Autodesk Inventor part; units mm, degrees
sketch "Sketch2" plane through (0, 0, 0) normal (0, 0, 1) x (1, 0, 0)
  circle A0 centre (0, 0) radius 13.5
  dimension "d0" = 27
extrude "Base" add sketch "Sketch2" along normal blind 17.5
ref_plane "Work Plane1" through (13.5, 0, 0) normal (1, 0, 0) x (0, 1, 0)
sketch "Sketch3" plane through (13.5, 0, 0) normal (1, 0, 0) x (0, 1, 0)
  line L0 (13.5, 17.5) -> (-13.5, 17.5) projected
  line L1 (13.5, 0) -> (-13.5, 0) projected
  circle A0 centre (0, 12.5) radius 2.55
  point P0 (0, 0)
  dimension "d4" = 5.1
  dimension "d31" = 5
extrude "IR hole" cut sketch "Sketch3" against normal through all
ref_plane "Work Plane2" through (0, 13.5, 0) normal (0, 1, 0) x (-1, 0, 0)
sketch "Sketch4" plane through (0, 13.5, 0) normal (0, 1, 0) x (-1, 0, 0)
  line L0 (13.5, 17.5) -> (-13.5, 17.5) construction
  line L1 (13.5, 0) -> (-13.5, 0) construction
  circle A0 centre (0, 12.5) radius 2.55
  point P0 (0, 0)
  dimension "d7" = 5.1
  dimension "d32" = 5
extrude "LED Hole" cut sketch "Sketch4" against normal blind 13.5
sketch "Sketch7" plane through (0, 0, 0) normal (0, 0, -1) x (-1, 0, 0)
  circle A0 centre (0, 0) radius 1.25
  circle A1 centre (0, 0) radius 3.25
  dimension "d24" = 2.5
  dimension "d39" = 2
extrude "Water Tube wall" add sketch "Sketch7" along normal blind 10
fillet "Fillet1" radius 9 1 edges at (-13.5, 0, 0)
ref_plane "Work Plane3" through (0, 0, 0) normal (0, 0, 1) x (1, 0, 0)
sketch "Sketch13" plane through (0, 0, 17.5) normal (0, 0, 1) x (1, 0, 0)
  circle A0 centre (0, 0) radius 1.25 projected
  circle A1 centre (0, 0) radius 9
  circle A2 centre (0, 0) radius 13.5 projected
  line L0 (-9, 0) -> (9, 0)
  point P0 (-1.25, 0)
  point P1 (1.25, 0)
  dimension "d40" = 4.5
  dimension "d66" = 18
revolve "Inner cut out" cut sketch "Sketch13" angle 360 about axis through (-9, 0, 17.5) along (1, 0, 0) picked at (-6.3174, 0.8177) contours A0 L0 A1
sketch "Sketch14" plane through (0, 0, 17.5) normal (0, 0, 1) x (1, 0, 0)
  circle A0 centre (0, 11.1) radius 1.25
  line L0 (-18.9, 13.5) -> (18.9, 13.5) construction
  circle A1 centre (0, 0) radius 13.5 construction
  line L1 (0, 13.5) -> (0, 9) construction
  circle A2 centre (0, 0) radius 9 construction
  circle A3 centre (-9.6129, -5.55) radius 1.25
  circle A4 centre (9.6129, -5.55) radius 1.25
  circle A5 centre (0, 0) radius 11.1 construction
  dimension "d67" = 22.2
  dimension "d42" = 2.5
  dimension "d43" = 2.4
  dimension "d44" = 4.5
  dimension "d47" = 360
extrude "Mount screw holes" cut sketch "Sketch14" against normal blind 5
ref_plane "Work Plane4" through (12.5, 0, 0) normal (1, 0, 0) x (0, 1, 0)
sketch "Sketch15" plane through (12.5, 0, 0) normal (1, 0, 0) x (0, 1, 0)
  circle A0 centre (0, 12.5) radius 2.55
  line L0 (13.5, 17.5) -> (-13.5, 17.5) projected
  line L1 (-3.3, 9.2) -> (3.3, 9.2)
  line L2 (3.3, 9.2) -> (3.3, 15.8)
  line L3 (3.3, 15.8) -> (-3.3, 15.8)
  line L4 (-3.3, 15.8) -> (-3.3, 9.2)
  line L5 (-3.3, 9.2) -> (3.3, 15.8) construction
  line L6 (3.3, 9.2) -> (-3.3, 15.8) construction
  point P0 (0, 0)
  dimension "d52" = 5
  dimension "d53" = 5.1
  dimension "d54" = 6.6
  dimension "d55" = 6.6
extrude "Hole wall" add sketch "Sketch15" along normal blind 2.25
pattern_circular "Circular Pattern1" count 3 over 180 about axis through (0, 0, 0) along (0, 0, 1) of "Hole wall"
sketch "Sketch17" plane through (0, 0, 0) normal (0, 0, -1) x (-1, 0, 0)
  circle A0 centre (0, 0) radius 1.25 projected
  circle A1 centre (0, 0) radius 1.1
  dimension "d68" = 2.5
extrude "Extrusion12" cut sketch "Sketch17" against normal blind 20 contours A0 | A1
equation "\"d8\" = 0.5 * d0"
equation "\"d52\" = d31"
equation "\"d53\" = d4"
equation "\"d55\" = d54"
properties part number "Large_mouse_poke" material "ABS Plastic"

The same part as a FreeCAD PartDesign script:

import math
import FreeCAD as App
import Part
import Sketcher
from FreeCAD import Vector
Q = App.Units.Quantity


def edges_at(feature, points):
    """Names of the edges that pass closest to the given points."""
    edges = feature.Shape.Edges
    near = lambda p: min(range(len(edges)), key=lambda i: edges[i].distToShape(Part.Vertex(*p))[0])
    return sorted({f"Edge{near(p) + 1}" for p in points})

doc = App.newDocument("Part")
body = doc.addObject("PartDesign::Body", "Body")
body.AllowCompound = True

# Sketch on XY plane
sketch1 = body.newObject("Sketcher::SketchObject", "Sketch")
sketch1.AttachmentSupport = (doc.getObject("XY_Plane"), [""])
sketch1.MapMode = "FlatFace"
sketch1.addGeometry(Part.Circle(Vector(0, 0, 0), Vector(0, 0, 1), 14), False)
sketch1.addConstraint(Sketcher.Constraint("Coincident", 0, 3, -1, 1))
sketch1.addConstraint(Sketcher.Constraint("Diameter", 0, Q("27 mm")))
pad1 = body.newObject("PartDesign::Pad", "Pad")
pad1.Profile = sketch1
pad1.Length = 17.5

# Sketch on YZ plane
sketch2 = body.newObject("Sketcher::SketchObject", "Sketch001")
sketch2.AttachmentSupport = (doc.getObject("YZ_Plane"), [""])
sketch2.MapMode = "FlatFace"
sketch2.AttachmentOffset = App.Placement(Vector(0, 0, 13.5), App.Rotation())
sketch2.addGeometry(Part.Circle(Vector(0, 12.5, 0), Vector(0, 0, 1), 2.5), False)
sketch2.addConstraint(Sketcher.Constraint("PointOnObject", 0, 3, -2))
sketch2.addConstraint(Sketcher.Constraint("Diameter", 0, Q("5.1 mm")))
sketch2.addConstraint(Sketcher.Constraint("DistanceY", -1, 1, 0, 3, Q("12.5 mm")))
pocket1 = body.newObject("PartDesign::Pocket", "Pocket")
pocket1.Profile = sketch2
pocket1.Type = "ThroughAll"

# Sketch on XZ plane
sketch3 = body.newObject("Sketcher::SketchObject", "Sketch002")
sketch3.AttachmentSupport = (doc.getObject("XZ_Plane"), [""])
sketch3.MapMode = "FlatFace"
sketch3.AttachmentOffset = App.Placement(Vector(0, 0, -13.5), App.Rotation())
sketch3.addGeometry(Part.Circle(Vector(0, 12.5, 0), Vector(0, 0, 1), 2.5), False)
sketch3.addConstraint(Sketcher.Constraint("PointOnObject", 0, 3, -2))
sketch3.addConstraint(Sketcher.Constraint("Diameter", 0, Q("5.1 mm")))
sketch3.addConstraint(Sketcher.Constraint("DistanceY", -1, 1, 0, 3, Q("12.5 mm")))
pocket2 = body.newObject("PartDesign::Pocket", "Pocket001")
pocket2.Profile = sketch3
pocket2.Length = 13.5
pocket2.Reversed = True

# Sketch on XY plane
sketch4 = body.newObject("Sketcher::SketchObject", "Sketch003")
sketch4.AttachmentSupport = (doc.getObject("XY_Plane"), [""])
sketch4.MapMode = "FlatFace"
sketch4.addGeometry(Part.Circle(Vector(0, 0, 0), Vector(0, 0, 1), 3.2), False)
sketch4.addGeometry(Part.Circle(Vector(0, 0, 0), Vector(0, 0, 1), 1.2), False)
sketch4.addConstraint(Sketcher.Constraint("Coincident", 0, 3, -1, 1))
sketch4.addConstraint(Sketcher.Constraint("Coincident", 1, 3, -1, 1))
sketch4.addConstraint(Sketcher.Constraint("Diameter", 1, Q("2.5 mm")))
sketch4.addConstraint(Sketcher.Constraint("Diameter", 0, Q("6.5 mm")))
pad2 = body.newObject("PartDesign::Pad", "Pad001")
pad2.Profile = sketch4
pad2.Length = 10
pad2.Reversed = True
doc.recompute()

fillet = body.newObject("PartDesign::Fillet", "Fillet")
fillet.Base = (pad2, edges_at(pad2, [(-13.5, 0, 0)]))
fillet.Radius = 9

# Sketch on XY plane
sketch5 = body.newObject("Sketcher::SketchObject", "Sketch004")
sketch5.AttachmentSupport = (doc.getObject("XY_Plane"), [""])
sketch5.MapMode = "FlatFace"
sketch5.AttachmentOffset = App.Placement(Vector(0, 0, 17.5), App.Rotation())
sketch5.addGeometry(Part.ArcOfCircle(Part.Circle(Vector(0, 0, 0), Vector(0, 0, 1), 1.2), math.radians(0), math.radians(180)), False)
sketch5.addGeometry(Part.LineSegment(Vector(1.2, 0, 0), Vector(9, 0, 0)), False)
sketch5.addGeometry(Part.ArcOfCircle(Part.Circle(Vector(0, 0, 0), Vector(0, 0, 1), 9), math.radians(0), math.radians(180)), False)
sketch5.addGeometry(Part.LineSegment(Vector(-9, 0, 0), Vector(-1.2, 0, 0)), False)
sketch5.addConstraint(Sketcher.Constraint("Coincident", 0, 1, 1, 1))
sketch5.addConstraint(Sketcher.Constraint("Coincident", 1, 2, 2, 1))
sketch5.addConstraint(Sketcher.Constraint("Coincident", 2, 2, 3, 1))
sketch5.addConstraint(Sketcher.Constraint("Coincident", 3, 2, 0, 2))
sketch5.addConstraint(Sketcher.Constraint("Horizontal", 1))
sketch5.addConstraint(Sketcher.Constraint("Horizontal", 3))
sketch5.addConstraint(Sketcher.Constraint("Coincident", 0, 3, -1, 1))
sketch5.addConstraint(Sketcher.Constraint("Coincident", 2, 3, -1, 1))
sketch5.addConstraint(Sketcher.Constraint("PointOnObject", 0, 1, -1))
sketch5.addConstraint(Sketcher.Constraint("PointOnObject", 2, 2, -1))
sketch5.addConstraint(Sketcher.Constraint("Radius", 2, Q("9 mm")))
sketch5.addConstraint(Sketcher.Constraint("Radius", 0, Q("1.25 mm")))
groove = body.newObject("PartDesign::Groove", "Groove")
groove.Profile = sketch5
groove.ReferenceAxis = (sketch5, ["H_Axis"])
groove.Angle = 360

# Sketch on XY plane
sketch6 = body.newObject("Sketcher::SketchObject", "Sketch005")
sketch6.AttachmentSupport = (doc.getObject("XY_Plane"), [""])
sketch6.MapMode = "FlatFace"
sketch6.AttachmentOffset = App.Placement(Vector(0, 0, 17.5), App.Rotation())
sketch6.addGeometry(Part.Circle(Vector(0, 11.1, 0), Vector(0, 0, 1), 1.2), False)
sketch6.addGeometry(Part.Circle(Vector(-9.6, -5.5, 0), Vector(0, 0, 1), 1.2), False)
sketch6.addGeometry(Part.Circle(Vector(9.6, -5.5, 0), Vector(0, 0, 1), 1.2), False)
sketch6.addConstraint(Sketcher.Constraint("Equal", 0, 1))
sketch6.addConstraint(Sketcher.Constraint("Equal", 1, 2))
sketch6.addConstraint(Sketcher.Constraint("Symmetric", 1, 3, 2, 3, -2))
sketch6.addConstraint(Sketcher.Constraint("PointOnObject", 0, 3, -2))
sketch6.addConstraint(Sketcher.Constraint("Diameter", 0, Q("2.5 mm")))
sketch6.addConstraint(Sketcher.Constraint("DistanceY", -1, 1, 0, 3, Q("11.1 mm")))
sketch6.addConstraint(Sketcher.Constraint("DistanceY", 1, 3, -1, 1, Q("5.55 mm")))
sketch6.addConstraint(Sketcher.Constraint("DistanceX", 1, 3, -1, 1, Q("9.613 mm")))
pocket3 = body.newObject("PartDesign::Pocket", "Pocket002")
pocket3.Profile = sketch6
pocket3.Length = 5

# Sketch on YZ plane
sketch7 = body.newObject("Sketcher::SketchObject", "Sketch006")
sketch7.AttachmentSupport = (doc.getObject("YZ_Plane"), [""])
sketch7.MapMode = "FlatFace"
sketch7.AttachmentOffset = App.Placement(Vector(0, 0, 12.5), App.Rotation())
sketch7.addGeometry(Part.LineSegment(Vector(-3.3, 15.8, 0), Vector(-3.3, 9.2, 0)), False)
sketch7.addGeometry(Part.LineSegment(Vector(-3.3, 9.2, 0), Vector(3.3, 9.2, 0)), False)
sketch7.addGeometry(Part.LineSegment(Vector(3.3, 9.2, 0), Vector(3.3, 15.8, 0)), False)
sketch7.addGeometry(Part.LineSegment(Vector(3.3, 15.8, 0), Vector(-3.3, 15.8, 0)), False)
sketch7.addGeometry(Part.Circle(Vector(0, 12.5, 0), Vector(0, 0, 1), 2.5), False)
sketch7.addConstraint(Sketcher.Constraint("Coincident", 0, 2, 1, 1))
sketch7.addConstraint(Sketcher.Constraint("Coincident", 1, 2, 2, 1))
sketch7.addConstraint(Sketcher.Constraint("Coincident", 2, 2, 3, 1))
sketch7.addConstraint(Sketcher.Constraint("Coincident", 3, 2, 0, 1))
sketch7.addConstraint(Sketcher.Constraint("Vertical", 0))
sketch7.addConstraint(Sketcher.Constraint("Horizontal", 1))
sketch7.addConstraint(Sketcher.Constraint("Vertical", 2))
sketch7.addConstraint(Sketcher.Constraint("Horizontal", 3))
sketch7.addConstraint(Sketcher.Constraint("PointOnObject", 4, 3, -2))
sketch7.addConstraint(Sketcher.Constraint("Equal", 3, 0))
sketch7.addConstraint(Sketcher.Constraint("Diameter", 4, Q("5.1 mm")))
sketch7.addConstraint(Sketcher.Constraint("DistanceX", 1, 1, 1, 2, Q("6.6 mm")))
sketch7.addConstraint(Sketcher.Constraint("DistanceY", -1, 1, 4, 3, Q("12.5 mm")))
sketch7.addConstraint(Sketcher.Constraint("DistanceX", 0, 2, -1, 1, Q("3.3 mm")))
sketch7.addConstraint(Sketcher.Constraint("DistanceY", -1, 1, 0, 2, Q("9.2 mm")))
pad3 = body.newObject("PartDesign::Pad", "Pad002")
pad3.Profile = sketch7
pad3.Length = 2.25
doc.recompute()

polarpattern = body.newObject("PartDesign::PolarPattern", "PolarPattern")
polarpattern.Originals = [pad3]
polarpattern.Axis = (doc.getObject("Z_Axis"), [""])
polarpattern.Angle = 180
polarpattern.Occurrences = 3
body.Tip = polarpattern

# Sketch on XY plane
sketch8 = body.newObject("Sketcher::SketchObject", "Sketch007")
sketch8.AttachmentSupport = (doc.getObject("XY_Plane"), [""])
sketch8.MapMode = "FlatFace"
sketch8.addGeometry(Part.Circle(Vector(0, 0, 0), Vector(0, 0, 1), 1.2), False)
sketch8.addConstraint(Sketcher.Constraint("Coincident", 0, 3, -1, 1))
sketch8.addConstraint(Sketcher.Constraint("Diameter", 0, Q("2.5 mm")))
pocket4 = body.newObject("PartDesign::Pocket", "Pocket003")
pocket4.Profile = sketch8
pocket4.Length = 20
pocket4.Reversed = True

doc.recompute()
